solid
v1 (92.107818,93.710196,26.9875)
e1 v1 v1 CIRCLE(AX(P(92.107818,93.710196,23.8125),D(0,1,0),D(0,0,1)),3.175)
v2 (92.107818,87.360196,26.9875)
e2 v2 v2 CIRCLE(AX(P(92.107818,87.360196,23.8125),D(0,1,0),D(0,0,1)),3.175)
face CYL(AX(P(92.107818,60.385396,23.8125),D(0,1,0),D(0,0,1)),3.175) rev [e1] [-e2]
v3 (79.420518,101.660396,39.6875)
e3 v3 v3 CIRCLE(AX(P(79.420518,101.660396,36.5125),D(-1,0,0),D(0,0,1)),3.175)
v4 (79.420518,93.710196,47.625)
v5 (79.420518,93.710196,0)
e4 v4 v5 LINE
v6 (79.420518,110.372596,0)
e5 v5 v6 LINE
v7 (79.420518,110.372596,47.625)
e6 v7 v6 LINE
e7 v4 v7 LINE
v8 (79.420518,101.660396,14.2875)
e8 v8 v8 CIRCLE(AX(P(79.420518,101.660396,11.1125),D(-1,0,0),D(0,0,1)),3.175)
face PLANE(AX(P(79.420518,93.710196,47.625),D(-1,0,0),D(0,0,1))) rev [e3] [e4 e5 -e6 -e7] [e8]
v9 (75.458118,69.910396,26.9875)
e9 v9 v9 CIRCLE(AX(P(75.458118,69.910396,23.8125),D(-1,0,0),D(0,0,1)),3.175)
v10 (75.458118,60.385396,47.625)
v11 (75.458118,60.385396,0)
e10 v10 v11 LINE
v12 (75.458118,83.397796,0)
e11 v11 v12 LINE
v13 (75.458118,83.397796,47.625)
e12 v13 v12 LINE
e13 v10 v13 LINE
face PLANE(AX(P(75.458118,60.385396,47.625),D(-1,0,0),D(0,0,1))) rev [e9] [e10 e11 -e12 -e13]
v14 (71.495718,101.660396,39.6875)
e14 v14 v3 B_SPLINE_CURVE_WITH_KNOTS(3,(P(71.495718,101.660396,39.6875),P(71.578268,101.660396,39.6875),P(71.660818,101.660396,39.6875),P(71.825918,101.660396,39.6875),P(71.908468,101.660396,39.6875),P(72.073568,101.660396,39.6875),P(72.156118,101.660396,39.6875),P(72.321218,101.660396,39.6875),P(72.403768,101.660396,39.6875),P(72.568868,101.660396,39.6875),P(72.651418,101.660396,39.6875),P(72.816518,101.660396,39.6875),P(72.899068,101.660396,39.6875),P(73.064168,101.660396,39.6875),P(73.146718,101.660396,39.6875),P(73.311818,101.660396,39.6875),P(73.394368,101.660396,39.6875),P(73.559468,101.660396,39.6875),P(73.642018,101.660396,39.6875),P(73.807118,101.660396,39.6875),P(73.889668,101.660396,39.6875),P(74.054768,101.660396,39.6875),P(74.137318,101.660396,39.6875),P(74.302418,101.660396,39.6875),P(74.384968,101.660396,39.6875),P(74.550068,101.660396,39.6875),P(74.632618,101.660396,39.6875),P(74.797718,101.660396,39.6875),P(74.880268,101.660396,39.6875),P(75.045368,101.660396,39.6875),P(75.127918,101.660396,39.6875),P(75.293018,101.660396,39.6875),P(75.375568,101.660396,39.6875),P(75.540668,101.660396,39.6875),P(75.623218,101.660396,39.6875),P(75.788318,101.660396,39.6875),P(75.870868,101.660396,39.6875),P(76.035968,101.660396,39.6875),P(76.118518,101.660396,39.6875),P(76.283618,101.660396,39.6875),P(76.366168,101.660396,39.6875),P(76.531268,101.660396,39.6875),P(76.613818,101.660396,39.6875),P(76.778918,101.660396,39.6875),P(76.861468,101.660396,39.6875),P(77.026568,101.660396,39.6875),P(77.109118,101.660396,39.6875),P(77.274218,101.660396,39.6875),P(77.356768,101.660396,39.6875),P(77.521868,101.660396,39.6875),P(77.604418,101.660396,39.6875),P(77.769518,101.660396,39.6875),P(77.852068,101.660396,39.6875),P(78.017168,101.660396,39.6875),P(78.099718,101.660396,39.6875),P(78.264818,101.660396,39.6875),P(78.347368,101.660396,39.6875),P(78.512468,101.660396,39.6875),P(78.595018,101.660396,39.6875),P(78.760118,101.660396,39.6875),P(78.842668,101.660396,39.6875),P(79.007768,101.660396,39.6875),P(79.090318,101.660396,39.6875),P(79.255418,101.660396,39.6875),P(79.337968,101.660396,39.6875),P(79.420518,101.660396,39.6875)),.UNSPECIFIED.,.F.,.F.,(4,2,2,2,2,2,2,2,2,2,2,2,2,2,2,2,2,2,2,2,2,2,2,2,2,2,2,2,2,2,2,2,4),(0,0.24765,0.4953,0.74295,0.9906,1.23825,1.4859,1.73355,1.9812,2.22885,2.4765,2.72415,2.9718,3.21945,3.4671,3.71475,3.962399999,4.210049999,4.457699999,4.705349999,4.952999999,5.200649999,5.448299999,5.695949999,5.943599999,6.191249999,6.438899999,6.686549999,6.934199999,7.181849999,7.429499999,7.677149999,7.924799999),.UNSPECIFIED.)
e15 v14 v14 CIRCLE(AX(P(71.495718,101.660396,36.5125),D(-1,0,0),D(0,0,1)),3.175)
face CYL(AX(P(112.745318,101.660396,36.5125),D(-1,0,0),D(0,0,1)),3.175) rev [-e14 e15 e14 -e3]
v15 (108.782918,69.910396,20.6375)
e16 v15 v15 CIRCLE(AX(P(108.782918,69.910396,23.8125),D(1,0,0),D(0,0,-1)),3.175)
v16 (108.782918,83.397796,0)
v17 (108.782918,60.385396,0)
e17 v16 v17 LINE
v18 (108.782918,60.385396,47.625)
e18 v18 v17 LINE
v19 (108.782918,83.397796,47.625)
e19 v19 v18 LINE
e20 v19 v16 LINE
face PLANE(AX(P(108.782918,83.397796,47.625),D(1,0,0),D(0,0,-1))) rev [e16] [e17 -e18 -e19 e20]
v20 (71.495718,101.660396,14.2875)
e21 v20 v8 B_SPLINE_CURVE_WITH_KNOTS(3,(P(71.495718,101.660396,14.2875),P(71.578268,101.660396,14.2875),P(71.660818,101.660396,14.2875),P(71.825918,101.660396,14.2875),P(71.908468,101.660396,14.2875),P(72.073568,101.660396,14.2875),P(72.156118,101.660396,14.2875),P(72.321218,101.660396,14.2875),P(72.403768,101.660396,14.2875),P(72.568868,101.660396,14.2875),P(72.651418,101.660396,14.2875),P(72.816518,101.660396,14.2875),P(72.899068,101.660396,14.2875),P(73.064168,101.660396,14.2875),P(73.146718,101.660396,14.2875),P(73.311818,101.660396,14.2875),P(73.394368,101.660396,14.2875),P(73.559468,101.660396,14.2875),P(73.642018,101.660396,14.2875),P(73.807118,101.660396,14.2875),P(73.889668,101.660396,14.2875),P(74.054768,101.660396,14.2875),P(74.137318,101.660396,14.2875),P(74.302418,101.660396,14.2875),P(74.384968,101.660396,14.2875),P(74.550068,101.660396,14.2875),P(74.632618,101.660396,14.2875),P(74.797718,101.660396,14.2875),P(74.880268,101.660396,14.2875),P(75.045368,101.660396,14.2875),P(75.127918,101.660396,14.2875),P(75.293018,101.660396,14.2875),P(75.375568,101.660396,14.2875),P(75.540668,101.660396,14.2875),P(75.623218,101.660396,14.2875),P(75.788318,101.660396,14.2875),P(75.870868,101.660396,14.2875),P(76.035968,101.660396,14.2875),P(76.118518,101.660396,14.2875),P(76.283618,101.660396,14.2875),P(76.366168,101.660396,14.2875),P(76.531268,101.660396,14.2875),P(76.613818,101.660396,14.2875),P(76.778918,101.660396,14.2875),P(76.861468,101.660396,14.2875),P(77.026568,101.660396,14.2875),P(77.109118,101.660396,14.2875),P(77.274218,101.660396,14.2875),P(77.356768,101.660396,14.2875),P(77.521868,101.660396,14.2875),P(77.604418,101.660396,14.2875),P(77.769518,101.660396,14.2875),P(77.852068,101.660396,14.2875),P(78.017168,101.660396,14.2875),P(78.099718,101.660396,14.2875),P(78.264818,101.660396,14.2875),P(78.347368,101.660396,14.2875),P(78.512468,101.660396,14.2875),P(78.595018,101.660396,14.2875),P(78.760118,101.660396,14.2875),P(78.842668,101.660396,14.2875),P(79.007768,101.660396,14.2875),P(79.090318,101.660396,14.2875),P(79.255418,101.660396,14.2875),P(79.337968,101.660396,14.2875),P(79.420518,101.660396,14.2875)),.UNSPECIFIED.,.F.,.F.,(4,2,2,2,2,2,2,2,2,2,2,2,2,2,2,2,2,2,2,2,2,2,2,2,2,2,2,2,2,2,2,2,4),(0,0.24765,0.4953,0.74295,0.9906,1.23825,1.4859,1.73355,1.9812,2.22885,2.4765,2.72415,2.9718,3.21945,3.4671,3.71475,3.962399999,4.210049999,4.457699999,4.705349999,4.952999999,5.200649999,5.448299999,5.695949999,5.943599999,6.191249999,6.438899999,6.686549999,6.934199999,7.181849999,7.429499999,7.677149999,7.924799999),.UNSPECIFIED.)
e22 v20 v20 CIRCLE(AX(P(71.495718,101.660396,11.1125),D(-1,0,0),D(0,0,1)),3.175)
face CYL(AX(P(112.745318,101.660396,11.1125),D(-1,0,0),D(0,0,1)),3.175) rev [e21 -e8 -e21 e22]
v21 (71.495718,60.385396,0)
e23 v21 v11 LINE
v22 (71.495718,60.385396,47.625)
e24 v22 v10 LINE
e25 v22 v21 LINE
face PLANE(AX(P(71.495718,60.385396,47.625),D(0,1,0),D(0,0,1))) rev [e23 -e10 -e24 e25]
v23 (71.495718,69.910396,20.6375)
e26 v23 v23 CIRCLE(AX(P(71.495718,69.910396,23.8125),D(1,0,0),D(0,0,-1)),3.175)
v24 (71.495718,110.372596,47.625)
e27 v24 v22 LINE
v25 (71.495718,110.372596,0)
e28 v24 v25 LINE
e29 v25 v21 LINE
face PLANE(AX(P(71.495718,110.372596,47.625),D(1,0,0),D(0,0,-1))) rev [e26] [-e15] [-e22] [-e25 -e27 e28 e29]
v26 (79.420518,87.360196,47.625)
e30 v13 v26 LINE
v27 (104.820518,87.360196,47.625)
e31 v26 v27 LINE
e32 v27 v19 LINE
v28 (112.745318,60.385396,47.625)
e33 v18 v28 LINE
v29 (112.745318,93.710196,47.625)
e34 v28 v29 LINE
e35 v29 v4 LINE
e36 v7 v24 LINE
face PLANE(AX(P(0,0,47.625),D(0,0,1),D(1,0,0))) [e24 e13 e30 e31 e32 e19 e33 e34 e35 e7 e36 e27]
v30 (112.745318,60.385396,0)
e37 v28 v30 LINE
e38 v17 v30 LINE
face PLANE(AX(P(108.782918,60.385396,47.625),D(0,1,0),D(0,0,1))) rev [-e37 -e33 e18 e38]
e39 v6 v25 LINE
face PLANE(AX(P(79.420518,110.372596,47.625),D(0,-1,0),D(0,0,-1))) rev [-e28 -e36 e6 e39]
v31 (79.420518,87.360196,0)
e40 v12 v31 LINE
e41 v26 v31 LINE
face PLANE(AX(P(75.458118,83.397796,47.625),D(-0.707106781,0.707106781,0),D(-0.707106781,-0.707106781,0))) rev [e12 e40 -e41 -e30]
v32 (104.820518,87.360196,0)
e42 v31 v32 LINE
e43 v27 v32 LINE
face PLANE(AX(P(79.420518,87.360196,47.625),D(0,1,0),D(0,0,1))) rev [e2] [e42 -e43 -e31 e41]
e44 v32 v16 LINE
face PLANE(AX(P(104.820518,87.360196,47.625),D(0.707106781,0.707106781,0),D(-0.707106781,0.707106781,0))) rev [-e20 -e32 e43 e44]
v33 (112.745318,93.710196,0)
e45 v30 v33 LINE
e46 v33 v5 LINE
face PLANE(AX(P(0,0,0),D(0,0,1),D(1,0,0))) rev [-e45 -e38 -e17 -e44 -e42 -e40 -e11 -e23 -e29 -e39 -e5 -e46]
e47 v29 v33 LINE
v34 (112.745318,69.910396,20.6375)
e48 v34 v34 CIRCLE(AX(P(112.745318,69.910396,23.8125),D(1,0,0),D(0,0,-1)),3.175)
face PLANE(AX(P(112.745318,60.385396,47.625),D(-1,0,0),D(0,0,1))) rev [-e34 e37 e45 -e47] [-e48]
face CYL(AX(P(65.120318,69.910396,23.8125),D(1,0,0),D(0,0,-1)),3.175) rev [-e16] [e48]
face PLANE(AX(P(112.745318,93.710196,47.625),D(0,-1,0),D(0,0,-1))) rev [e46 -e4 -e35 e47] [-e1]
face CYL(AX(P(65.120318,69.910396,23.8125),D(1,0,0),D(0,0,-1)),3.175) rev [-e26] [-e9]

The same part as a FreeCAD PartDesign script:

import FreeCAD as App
import Part
import Sketcher
Q = App.Units.Quantity


def add_polygon(sketch, points):
    """Adds a closed chain of lines whose ends are joined by coincident constraints."""
    first, n = sketch.GeometryCount, len(points)
    for a, b in zip(points, points[1:] + points[:1]):
        sketch.addGeometry(Part.LineSegment(App.Vector(*a, 0), App.Vector(*b, 0)), False)
    for i in range(n):
        sketch.addConstraint(Sketcher.Constraint("Coincident", first + i, 2, first + (i + 1) % n, 1))

doc = App.newDocument("Part")
body = doc.addObject("PartDesign::Body", "Body")

# Sketch on XY plane
sketch1 = body.newObject("Sketcher::SketchObject", "Sketch")
sketch1.AttachmentSupport = (doc.getObject("XY_Plane"), [""])
sketch1.MapMode = "FlatFace"
add_polygon(sketch1, [(112.7, 60.4), (112.7, 93.7), (79.4, 93.7), (79.4, 110.4), (71.5, 110.4), (71.5, 60.4), (75.5, 60.4), (75.5, 83.4), (79.4, 87.4), (104.8, 87.4), (108.8, 83.4), (108.8, 60.4)])  # lines 0-11
sketch1.addConstraint([
    Sketcher.Constraint("Vertical", 0),
    Sketcher.Constraint("Horizontal", 1),
    Sketcher.Constraint("Vertical", 2),
    Sketcher.Constraint("Horizontal", 3),
    Sketcher.Constraint("Vertical", 4),
    Sketcher.Constraint("Horizontal", 5),
    Sketcher.Constraint("Vertical", 6),
    Sketcher.Constraint("Horizontal", 8),
    Sketcher.Constraint("Vertical", 10),
    Sketcher.Constraint("Horizontal", 11),
    Sketcher.Constraint("Perpendicular", 7, 9),
    Sketcher.Constraint("Horizontal", 6, 2, 9, 2),
    Sketcher.Constraint("Horizontal", 5, 2, 10, 2),
    Sketcher.Constraint("Vertical", 2, 2, 7, 2),
    Sketcher.Constraint("Equal", 5, 11),
    Sketcher.Constraint("Equal", 1, 0),
    Sketcher.Constraint("Equal", 7, 9),
    Sketcher.Constraint("DistanceX", 8, 1, 8, 2, Q("1 in")),
    Sketcher.Constraint("DistanceX", 1, 2, 1, 1, Q("1.312 in")),
    Sketcher.Constraint("DistanceX", 5, 1, 5, 2, Q("0.156 in")),
    Sketcher.Constraint("DistanceY", 2, 1, 2, 2, Q("0.656 in")),
    Sketcher.Constraint("DistanceY", 6, 1, 6, 2, Q("0.906 in")),
    Sketcher.Constraint("DistanceX", -1, 1, 0, 2, 112.745318),
    Sketcher.Constraint("DistanceY", -1, 1, 0, 2, 93.710196),
])
pad1 = body.newObject("PartDesign::Pad", "Pad")
pad1.Profile = sketch1
pad1.Length = Q("1.875 in")

# Sketch on XZ plane
sketch2 = body.newObject("Sketcher::SketchObject", "Sketch001")
sketch2.AttachmentSupport = (doc.getObject("XZ_Plane"), [""])
sketch2.MapMode = "FlatFace"
sketch2.AttachmentOffset = App.Placement(App.Vector(0, 0, -93.710196), App.Rotation())
sketch2.addGeometry(Part.Circle(App.Vector(92.1, 23.8, 0), App.Vector(0, 0, 1), 3.2), False)
sketch2.addConstraint([
    Sketcher.Constraint("Diameter", 0, Q("0.25 in")),
    Sketcher.Constraint("DistanceY", -1, 1, 0, 3, Q("0.9375 in")),
    Sketcher.Constraint("DistanceX", -1, 1, 0, 3, 92.107818),
])
pocket1 = body.newObject("PartDesign::Pocket", "Pocket")
pocket1.Profile = sketch2
pocket1.Type = "ThroughAll"
pocket1.Reversed = True

# Sketch on YZ plane
sketch3 = body.newObject("Sketcher::SketchObject", "Sketch002")
sketch3.AttachmentSupport = (doc.getObject("YZ_Plane"), [""])
sketch3.MapMode = "FlatFace"
sketch3.AttachmentOffset = App.Placement(App.Vector(0, 0, 71.495718), App.Rotation())
sketch3.addGeometry([
    Part.Circle(App.Vector(101.7, 11.1, 0), App.Vector(0, 0, 1), 3.2),
    Part.Circle(App.Vector(101.7, 36.5, 0), App.Vector(0, 0, 1), 3.2),
], False)
sketch3.addConstraint([
    Sketcher.Constraint("Equal", 0, 1),
    Sketcher.Constraint("Vertical", 0, 3, 1, 3),
    Sketcher.Constraint("Diameter", 0, Q("0.25 in")),
    Sketcher.Constraint("DistanceY", 0, 3, 1, 3, Q("1 in")),
    Sketcher.Constraint("DistanceY", -1, 1, 0, 3, Q("0.4375 in")),
    Sketcher.Constraint("DistanceX", -1, 1, 0, 3, 101.660396),
])
pocket2 = body.newObject("PartDesign::Pocket", "Pocket001")
pocket2.Profile = sketch3
pocket2.Type = "ThroughAll"
pocket2.Reversed = True

# Sketch on YZ plane
sketch4 = body.newObject("Sketcher::SketchObject", "Sketch003")
sketch4.AttachmentSupport = (doc.getObject("YZ_Plane"), [""])
sketch4.MapMode = "FlatFace"
sketch4.AttachmentOffset = App.Placement(App.Vector(0, 0, 112.745318), App.Rotation())
sketch4.addGeometry(Part.Circle(App.Vector(69.9, 23.8, 0), App.Vector(0, 0, 1), 3.2), False)
sketch4.addConstraint([
    Sketcher.Constraint("Diameter", 0, Q("0.25 in")),
    Sketcher.Constraint("DistanceY", -1, 1, 0, 3, Q("0.9375 in")),
    Sketcher.Constraint("DistanceX", -1, 1, 0, 3, 69.910396),
])
pocket3 = body.newObject("PartDesign::Pocket", "Pocket002")
pocket3.Profile = sketch4
pocket3.Length = Q("1.875 in")

doc.recompute()
